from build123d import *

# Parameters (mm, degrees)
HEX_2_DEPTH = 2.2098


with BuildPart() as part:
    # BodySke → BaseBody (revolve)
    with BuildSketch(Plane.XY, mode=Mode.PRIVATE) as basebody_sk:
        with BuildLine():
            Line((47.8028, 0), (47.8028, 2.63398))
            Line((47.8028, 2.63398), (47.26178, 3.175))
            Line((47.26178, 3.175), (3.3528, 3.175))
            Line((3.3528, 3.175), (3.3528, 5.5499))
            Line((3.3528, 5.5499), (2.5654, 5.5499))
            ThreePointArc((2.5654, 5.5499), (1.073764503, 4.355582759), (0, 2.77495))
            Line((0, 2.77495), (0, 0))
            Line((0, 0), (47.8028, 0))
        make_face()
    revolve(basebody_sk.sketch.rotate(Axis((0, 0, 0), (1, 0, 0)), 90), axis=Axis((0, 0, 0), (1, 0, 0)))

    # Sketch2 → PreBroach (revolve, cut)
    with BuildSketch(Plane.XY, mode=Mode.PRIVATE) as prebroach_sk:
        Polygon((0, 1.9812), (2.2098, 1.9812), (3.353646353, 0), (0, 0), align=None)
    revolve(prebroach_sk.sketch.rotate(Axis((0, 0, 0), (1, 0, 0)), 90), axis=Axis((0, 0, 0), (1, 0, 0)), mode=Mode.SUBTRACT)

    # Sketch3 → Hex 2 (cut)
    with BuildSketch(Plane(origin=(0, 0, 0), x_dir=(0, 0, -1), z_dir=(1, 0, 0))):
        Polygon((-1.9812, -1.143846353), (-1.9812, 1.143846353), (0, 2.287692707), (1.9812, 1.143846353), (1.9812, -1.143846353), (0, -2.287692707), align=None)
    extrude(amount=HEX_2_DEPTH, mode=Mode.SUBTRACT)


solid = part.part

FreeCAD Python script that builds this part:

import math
import FreeCAD as App
import Part
import Sketcher
from FreeCAD import Vector
Q = App.Units.Quantity

doc = App.newDocument("Part")
body = doc.addObject("PartDesign::Body", "Body")

# Sketch on XY plane
sketch1 = body.newObject("Sketcher::SketchObject", "Sketch")
sketch1.AttachmentSupport = (doc.getObject("XY_Plane"), [""])
sketch1.MapMode = "FlatFace"
sketch1.addGeometry(Part.LineSegment(Vector(47.8028, 0, 0), Vector(47.8028, 2.63398, 0)), False)
sketch1.addGeometry(Part.LineSegment(Vector(47.8028, 2.63398, 0), Vector(47.26178, 3.175, 0)), False)
sketch1.addGeometry(Part.LineSegment(Vector(47.26178, 3.175, 0), Vector(3.3528, 3.175, 0)), False)
sketch1.addGeometry(Part.LineSegment(Vector(3.3528, 3.175, 0), Vector(3.3528, 5.5499, 0)), False)
sketch1.addGeometry(Part.LineSegment(Vector(3.3528, 5.5499, 0), Vector(2.5654, 5.5499, 0)), False)
sketch1.addGeometry(Part.ArcOfCircle(Part.Circle(Vector(5.785125, 0, 0), Vector(0, 0, 1), 6.416231), math.radians(120.119782), math.radians(154.374371)), False)
sketch1.addGeometry(Part.LineSegment(Vector(0, 2.77495, 0), Vector(0, 0, 0)), False)
sketch1.addGeometry(Part.LineSegment(Vector(0, 0, 0), Vector(47.8028, 0, 0)), False)
sketch1.addConstraint(Sketcher.Constraint("Coincident", 0, 2, 1, 1))
sketch1.addConstraint(Sketcher.Constraint("Coincident", 1, 2, 2, 1))
sketch1.addConstraint(Sketcher.Constraint("Coincident", 2, 2, 3, 1))
sketch1.addConstraint(Sketcher.Constraint("Coincident", 3, 2, 4, 1))
sketch1.addConstraint(Sketcher.Constraint("Coincident", 4, 2, 5, 1))
sketch1.addConstraint(Sketcher.Constraint("Coincident", 5, 2, 6, 1))
sketch1.addConstraint(Sketcher.Constraint("Coincident", 6, 2, 7, 1))
sketch1.addConstraint(Sketcher.Constraint("Coincident", 7, 2, 0, 1))
sketch1.addConstraint(Sketcher.Constraint("Vertical", 0))
sketch1.addConstraint(Sketcher.Constraint("Horizontal", 2))
sketch1.addConstraint(Sketcher.Constraint("Vertical", 3))
sketch1.addConstraint(Sketcher.Constraint("Horizontal", 4))
sketch1.addConstraint(Sketcher.Constraint("Vertical", 6))
sketch1.addConstraint(Sketcher.Constraint("Horizontal", 7))
sketch1.addConstraint(Sketcher.Constraint("Coincident", 6, 2, -1, 1))
sketch1.addConstraint(Sketcher.Constraint("PointOnObject", 5, 3, -1))
sketch1.addConstraint(Sketcher.Constraint("Angle", 1, Q("135 deg")))
sketch1.addConstraint(Sketcher.Constraint("DistanceX", 4, 2, 4, 1, Q("0.031 in")))
sketch1.addConstraint(Sketcher.Constraint("DistanceX", 7, 1, 7, 2, Q("1.882 in")))
sketch1.addConstraint(Sketcher.Constraint("DistanceX", 2, 2, 0, 2, Q("1.75 in")))
sketch1.addConstraint(Sketcher.Constraint("DistanceX", 2, 2, 2, 1, Q("1.7287 in")))
sketch1.addConstraint(Sketcher.Constraint("DistanceY", 0, 1, 0, 2, Q("0.1037 in")))
sketch1.addConstraint(Sketcher.Constraint("DistanceY", 3, 1, 3, 2, Q("0.0935 in")))
sketch1.addConstraint(Sketcher.Constraint("Radius", 5, 6.416231))
revolution = body.newObject("PartDesign::Revolution", "Revolution")
revolution.Profile = sketch1
revolution.ReferenceAxis = (sketch1, ["H_Axis"])
revolution.Angle = 360

# Sketch on XY plane
sketch2 = body.newObject("Sketcher::SketchObject", "Sketch001")
sketch2.AttachmentSupport = (doc.getObject("XY_Plane"), [""])
sketch2.MapMode = "FlatFace"
sketch2.addGeometry(Part.LineSegment(Vector(2.2098, 1.9812, 0), Vector(0, 1.9812, 0)), False)
sketch2.addGeometry(Part.LineSegment(Vector(0, 1.9812, 0), Vector(0, 0, 0)), False)
sketch2.addGeometry(Part.LineSegment(Vector(0, 0, 0), Vector(3.353646, 0, 0)), False)
sketch2.addGeometry(Part.LineSegment(Vector(3.353646, 0, 0), Vector(2.2098, 1.9812, 0)), False)
sketch2.addConstraint(Sketcher.Constraint("Coincident", 0, 2, 1, 1))
sketch2.addConstraint(Sketcher.Constraint("Coincident", 1, 2, 2, 1))
sketch2.addConstraint(Sketcher.Constraint("Coincident", 2, 2, 3, 1))
sketch2.addConstraint(Sketcher.Constraint("Coincident", 3, 2, 0, 1))
sketch2.addConstraint(Sketcher.Constraint("Horizontal", 0))
sketch2.addConstraint(Sketcher.Constraint("Vertical", 1))
sketch2.addConstraint(Sketcher.Constraint("Horizontal", 2))
sketch2.addConstraint(Sketcher.Constraint("Coincident", 1, 2, -1, 1))
sketch2.addConstraint(Sketcher.Constraint("Angle", 3, Q("120 deg")))
sketch2.addConstraint(Sketcher.Constraint("DistanceX", 0, 2, 0, 1, Q("0.087 in")))
sketch2.addConstraint(Sketcher.Constraint("DistanceY", 1, 2, 1, 1, Q("0.078 in")))
groove = body.newObject("PartDesign::Groove", "Groove")
groove.Profile = sketch2
groove.ReferenceAxis = (sketch2, ["H_Axis"])
groove.Angle = 360

# Sketch on YZ plane
sketch3 = body.newObject("Sketcher::SketchObject", "Sketch002")
sketch3.AttachmentSupport = (doc.getObject("YZ_Plane"), [""])
sketch3.MapMode = "FlatFace"
sketch3.addGeometry(Part.LineSegment(Vector(1.143846, 1.9812, 0), Vector(-1.143846, 1.9812, 0)), False)
sketch3.addGeometry(Part.LineSegment(Vector(-1.143846, 1.9812, 0), Vector(-2.287693, 0, 0)), False)
sketch3.addGeometry(Part.LineSegment(Vector(-2.287693, 0, 0), Vector(-1.143846, -1.9812, 0)), False)
sketch3.addGeometry(Part.LineSegment(Vector(-1.143846, -1.9812, 0), Vector(1.143846, -1.9812, 0)), False)
sketch3.addGeometry(Part.LineSegment(Vector(1.143846, -1.9812, 0), Vector(2.287693, 0, 0)), False)
sketch3.addGeometry(Part.LineSegment(Vector(2.287693, 0, 0), Vector(1.143846, 1.9812, 0)), False)
sketch3.addConstraint(Sketcher.Constraint("Coincident", 0, 2, 1, 1))
sketch3.addConstraint(Sketcher.Constraint("Coincident", 1, 2, 2, 1))
sketch3.addConstraint(Sketcher.Constraint("Coincident", 2, 2, 3, 1))
sketch3.addConstraint(Sketcher.Constraint("Coincident", 3, 2, 4, 1))
sketch3.addConstraint(Sketcher.Constraint("Coincident", 4, 2, 5, 1))
sketch3.addConstraint(Sketcher.Constraint("Coincident", 5, 2, 0, 1))
sketch3.addConstraint(Sketcher.Constraint("Horizontal", 0))
sketch3.addConstraint(Sketcher.Constraint("Horizontal", 3))
sketch3.addConstraint(Sketcher.Constraint("Symmetric", 0, 2, 3, 2, -1, 1))
sketch3.addConstraint(Sketcher.Constraint("Symmetric", 1, 2, 4, 2, -1, 1))
sketch3.addConstraint(Sketcher.Constraint("PointOnObject", 1, 2, -1))
sketch3.addConstraint(Sketcher.Constraint("Parallel", 2, 5))
sketch3.addConstraint(Sketcher.Constraint("Vertical", 0, 2, 2, 2))
sketch3.addConstraint(Sketcher.Constraint("Angle", 1, Q("-120 deg")))
sketch3.addConstraint(Sketcher.Constraint("DistanceY", -1, 1, 0, 2, Q("0.078 in")))
sketch3.addConstraint(Sketcher.Constraint("DistanceX", 1, 2, 3, 2, Q("0.1351 in")))
pocket1 = body.newObject("PartDesign::Pocket", "Pocket")
pocket1.Profile = sketch3
pocket1.Length = Q("0.087 in")
pocket1.Reversed = True

doc.recompute()
